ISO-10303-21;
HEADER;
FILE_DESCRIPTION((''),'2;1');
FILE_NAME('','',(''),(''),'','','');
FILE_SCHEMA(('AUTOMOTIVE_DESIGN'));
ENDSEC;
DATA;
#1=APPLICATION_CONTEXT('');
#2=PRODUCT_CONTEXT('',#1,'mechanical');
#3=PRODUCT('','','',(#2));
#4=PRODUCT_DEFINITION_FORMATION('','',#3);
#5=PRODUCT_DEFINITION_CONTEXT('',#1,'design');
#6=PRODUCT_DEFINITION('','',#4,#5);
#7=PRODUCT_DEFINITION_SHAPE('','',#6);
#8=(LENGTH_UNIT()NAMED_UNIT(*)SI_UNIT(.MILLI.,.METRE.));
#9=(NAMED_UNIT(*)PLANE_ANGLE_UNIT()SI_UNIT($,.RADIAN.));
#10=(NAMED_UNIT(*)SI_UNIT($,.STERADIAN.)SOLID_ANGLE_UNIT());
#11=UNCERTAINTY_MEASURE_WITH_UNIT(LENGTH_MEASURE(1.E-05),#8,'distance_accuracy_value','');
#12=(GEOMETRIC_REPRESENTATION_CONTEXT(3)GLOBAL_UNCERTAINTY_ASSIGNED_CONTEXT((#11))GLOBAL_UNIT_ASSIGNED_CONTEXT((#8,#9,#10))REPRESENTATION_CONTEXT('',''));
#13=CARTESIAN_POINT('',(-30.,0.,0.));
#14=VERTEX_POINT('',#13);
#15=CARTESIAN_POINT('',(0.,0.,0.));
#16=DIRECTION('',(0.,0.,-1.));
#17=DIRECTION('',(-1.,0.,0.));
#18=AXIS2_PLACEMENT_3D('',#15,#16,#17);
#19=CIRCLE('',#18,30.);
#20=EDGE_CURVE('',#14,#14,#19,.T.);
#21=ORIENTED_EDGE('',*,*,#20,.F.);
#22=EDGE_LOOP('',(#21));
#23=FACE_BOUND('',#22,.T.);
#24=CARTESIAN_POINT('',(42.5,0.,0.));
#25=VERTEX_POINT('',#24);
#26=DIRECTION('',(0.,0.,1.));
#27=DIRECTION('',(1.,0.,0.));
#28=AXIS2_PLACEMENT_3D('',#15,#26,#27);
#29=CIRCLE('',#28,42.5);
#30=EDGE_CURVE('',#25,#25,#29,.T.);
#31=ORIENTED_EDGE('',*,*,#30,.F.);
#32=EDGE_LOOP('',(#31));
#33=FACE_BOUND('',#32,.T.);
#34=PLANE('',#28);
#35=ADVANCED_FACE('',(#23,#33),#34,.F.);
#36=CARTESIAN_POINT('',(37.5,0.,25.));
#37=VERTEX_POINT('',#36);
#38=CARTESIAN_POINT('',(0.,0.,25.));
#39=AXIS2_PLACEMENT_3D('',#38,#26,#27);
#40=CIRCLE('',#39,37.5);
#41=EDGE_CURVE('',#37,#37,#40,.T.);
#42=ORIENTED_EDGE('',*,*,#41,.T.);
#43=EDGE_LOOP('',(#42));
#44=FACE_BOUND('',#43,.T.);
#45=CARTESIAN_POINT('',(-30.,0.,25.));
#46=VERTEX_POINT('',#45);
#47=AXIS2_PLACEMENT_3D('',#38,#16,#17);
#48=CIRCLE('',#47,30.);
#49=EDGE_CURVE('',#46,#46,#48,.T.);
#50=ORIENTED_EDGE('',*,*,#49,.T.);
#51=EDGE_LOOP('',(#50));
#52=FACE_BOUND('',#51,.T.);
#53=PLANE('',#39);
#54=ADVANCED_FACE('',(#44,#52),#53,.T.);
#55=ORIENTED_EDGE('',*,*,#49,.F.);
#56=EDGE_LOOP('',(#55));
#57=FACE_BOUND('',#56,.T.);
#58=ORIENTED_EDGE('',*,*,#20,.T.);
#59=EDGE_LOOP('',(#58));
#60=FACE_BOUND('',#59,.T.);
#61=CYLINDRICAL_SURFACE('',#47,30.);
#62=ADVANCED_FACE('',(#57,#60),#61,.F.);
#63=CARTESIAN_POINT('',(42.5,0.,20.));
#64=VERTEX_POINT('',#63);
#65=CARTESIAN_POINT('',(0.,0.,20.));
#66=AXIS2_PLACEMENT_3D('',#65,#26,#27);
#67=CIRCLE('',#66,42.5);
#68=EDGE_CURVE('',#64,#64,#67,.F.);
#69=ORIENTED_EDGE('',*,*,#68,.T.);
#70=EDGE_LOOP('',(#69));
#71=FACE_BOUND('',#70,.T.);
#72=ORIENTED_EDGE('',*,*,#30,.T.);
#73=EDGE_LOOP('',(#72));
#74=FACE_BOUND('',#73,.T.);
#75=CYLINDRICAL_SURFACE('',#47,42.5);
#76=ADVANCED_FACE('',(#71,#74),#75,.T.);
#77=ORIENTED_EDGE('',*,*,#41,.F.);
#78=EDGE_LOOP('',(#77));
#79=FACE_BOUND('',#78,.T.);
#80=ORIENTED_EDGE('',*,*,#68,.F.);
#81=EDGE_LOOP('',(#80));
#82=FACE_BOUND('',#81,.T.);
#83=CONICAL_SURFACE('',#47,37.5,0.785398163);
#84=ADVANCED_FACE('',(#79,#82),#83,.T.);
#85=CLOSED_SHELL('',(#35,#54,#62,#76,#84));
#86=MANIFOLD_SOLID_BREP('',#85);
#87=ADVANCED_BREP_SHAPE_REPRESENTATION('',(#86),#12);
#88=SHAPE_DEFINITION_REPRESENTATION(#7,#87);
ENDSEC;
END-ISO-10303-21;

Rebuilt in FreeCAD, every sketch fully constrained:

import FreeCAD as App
import Part
import Sketcher
Q = App.Units.Quantity


def edges_at(feature, points):
    """Names of the edges that pass closest to the given points."""
    edges = feature.Shape.Edges
    near = lambda p: min(range(len(edges)), key=lambda i: edges[i].distToShape(Part.Vertex(*p))[0])
    return sorted({f"Edge{near(p) + 1}" for p in points})

doc = App.newDocument("Part")
body = doc.addObject("PartDesign::Body", "Body")

# Sketch on XY plane
sketch1 = body.newObject("Sketcher::SketchObject", "Sketch")
sketch1.AttachmentSupport = (doc.getObject("XY_Plane"), [""])
sketch1.MapMode = "FlatFace"
sketch1.addGeometry(Part.Circle(App.Vector(0, 0, 0), App.Vector(0, 0, 1), 42.5), False)
sketch1.addConstraint([
    Sketcher.Constraint("Coincident", 0, 3, -1, 1),
    Sketcher.Constraint("Diameter", 0, Q("85 mm")),
])
pad1 = body.newObject("PartDesign::Pad", "Pad")
pad1.Profile = sketch1
pad1.Length = 25
doc.recompute()

chamfer = body.newObject("PartDesign::Chamfer", "Chamfer")
chamfer.Base = (pad1, edges_at(pad1, [(-42.5, 0, 25)]))
chamfer.Size = 5

# Sketch on XY plane
sketch2 = body.newObject("Sketcher::SketchObject", "Sketch001")
sketch2.AttachmentSupport = (doc.getObject("XY_Plane"), [""])
sketch2.MapMode = "FlatFace"
sketch2.addGeometry(Part.Circle(App.Vector(0, 0, 0), App.Vector(0, 0, 1), 30), False)
sketch2.addConstraint([
    Sketcher.Constraint("Coincident", 0, 3, -1, 1),
    Sketcher.Constraint("Diameter", 0, Q("60 mm")),
])
pocket1 = body.newObject("PartDesign::Pocket", "Pocket")
pocket1.Profile = sketch2
pocket1.Type = "ThroughAll"
pocket1.Reversed = True

doc.recompute()
